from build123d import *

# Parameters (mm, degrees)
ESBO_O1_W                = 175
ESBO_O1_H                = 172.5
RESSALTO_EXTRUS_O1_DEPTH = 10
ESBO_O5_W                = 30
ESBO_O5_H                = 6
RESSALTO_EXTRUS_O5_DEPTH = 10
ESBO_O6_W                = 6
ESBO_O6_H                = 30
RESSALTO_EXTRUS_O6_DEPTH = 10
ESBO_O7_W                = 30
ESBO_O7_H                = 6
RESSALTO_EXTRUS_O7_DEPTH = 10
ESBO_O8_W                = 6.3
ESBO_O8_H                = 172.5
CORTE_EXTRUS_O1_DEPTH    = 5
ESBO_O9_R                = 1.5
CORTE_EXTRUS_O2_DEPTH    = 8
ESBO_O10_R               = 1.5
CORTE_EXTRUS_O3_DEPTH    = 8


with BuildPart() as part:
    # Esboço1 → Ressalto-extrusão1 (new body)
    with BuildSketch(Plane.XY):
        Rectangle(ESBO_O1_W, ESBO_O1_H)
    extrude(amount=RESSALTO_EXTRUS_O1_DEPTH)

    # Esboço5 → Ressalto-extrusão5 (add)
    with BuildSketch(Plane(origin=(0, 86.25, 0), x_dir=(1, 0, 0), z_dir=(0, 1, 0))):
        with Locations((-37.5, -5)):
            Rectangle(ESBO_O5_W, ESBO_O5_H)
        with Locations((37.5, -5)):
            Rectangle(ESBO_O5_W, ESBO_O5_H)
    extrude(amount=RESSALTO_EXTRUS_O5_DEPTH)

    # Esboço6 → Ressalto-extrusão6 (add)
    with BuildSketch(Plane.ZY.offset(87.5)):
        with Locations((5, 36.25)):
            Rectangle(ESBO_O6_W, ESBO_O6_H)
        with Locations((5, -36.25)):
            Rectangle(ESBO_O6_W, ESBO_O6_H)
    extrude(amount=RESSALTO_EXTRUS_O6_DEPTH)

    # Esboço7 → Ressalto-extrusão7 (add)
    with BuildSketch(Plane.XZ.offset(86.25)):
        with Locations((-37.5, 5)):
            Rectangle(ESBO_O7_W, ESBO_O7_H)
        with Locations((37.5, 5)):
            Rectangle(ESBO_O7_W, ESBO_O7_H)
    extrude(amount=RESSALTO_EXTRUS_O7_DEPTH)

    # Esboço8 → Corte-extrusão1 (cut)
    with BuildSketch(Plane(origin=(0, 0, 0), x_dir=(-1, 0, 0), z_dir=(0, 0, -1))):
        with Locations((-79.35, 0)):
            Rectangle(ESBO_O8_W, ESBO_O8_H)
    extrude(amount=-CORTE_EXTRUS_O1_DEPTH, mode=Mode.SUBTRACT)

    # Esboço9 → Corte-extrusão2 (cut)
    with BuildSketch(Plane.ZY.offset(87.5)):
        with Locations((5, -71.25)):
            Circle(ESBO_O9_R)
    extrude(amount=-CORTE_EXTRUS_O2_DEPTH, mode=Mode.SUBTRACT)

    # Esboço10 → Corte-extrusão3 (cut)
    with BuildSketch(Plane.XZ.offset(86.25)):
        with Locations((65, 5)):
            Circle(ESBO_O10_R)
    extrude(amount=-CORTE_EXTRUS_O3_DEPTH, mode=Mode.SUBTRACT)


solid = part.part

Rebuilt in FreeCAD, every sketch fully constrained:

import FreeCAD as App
import Part
import Sketcher

V = App.Vector
Q = App.Units.Quantity


def add_polygon(sketch, points):
    """Adds a closed chain of lines whose ends are joined by coincident constraints."""
    first, n = sketch.GeometryCount, len(points)
    for a, b in zip(points, points[1:] + points[:1]):
        sketch.addGeometry(Part.LineSegment(App.Vector(*a, 0), App.Vector(*b, 0)), False)
    for i in range(n):
        sketch.addConstraint(Sketcher.Constraint("Coincident", first + i, 2, first + (i + 1) % n, 1))

doc = App.newDocument("Part")
body = doc.addObject("PartDesign::Body", "Body")

# Sketch on XY plane
sketch1 = doc.addObject("Sketcher::SketchObject", "Sketch")
body.addObject(sketch1)
sketch1.AttachmentSupport = (doc.XY_Plane, [""])
sketch1.MapMode = "FlatFace"
add_polygon(sketch1, [(-88, 86), (-88, -86), (88, -86), (88, 86)])  # lines 0-3
sketch1.addConstraint([
    Sketcher.Constraint("Vertical", 0),
    Sketcher.Constraint("Horizontal", 1),
    Sketcher.Constraint("Vertical", 2),
    Sketcher.Constraint("Horizontal", 3),
    Sketcher.Constraint("Symmetric", 0, 2, 2, 2, -1, 1),
    Sketcher.Constraint("DistanceX", 1, 1, 1, 2, Q("175 mm")),
    Sketcher.Constraint("DistanceY", 0, 2, 0, 1, Q("172.5 mm")),
])
pad1 = doc.addObject("PartDesign::Pad", "Pad")
body.addObject(pad1)
pad1.Profile = sketch1
pad1.Length = 10

# Sketch on XZ plane
sketch2 = doc.addObject("Sketcher::SketchObject", "Sketch001")
body.addObject(sketch2)
sketch2.AttachmentSupport = (doc.XZ_Plane, [""])
sketch2.MapMode = "FlatFace"
sketch2.AttachmentOffset = App.Placement(V(0, 0, -86.25), App.Rotation())
add_polygon(sketch2, [(-52, 2), (-52, 8), (-22, 8), (-22, 2)])  # lines 0-3
add_polygon(sketch2, [(22, 2), (22, 8), (52, 8), (52, 2)])  # lines 4-7
sketch2.addConstraint([
    Sketcher.Constraint("Vertical", 0),
    Sketcher.Constraint("Horizontal", 1),
    Sketcher.Constraint("Vertical", 2),
    Sketcher.Constraint("Horizontal", 3),
    Sketcher.Constraint("Vertical", 4),
    Sketcher.Constraint("Horizontal", 5),
    Sketcher.Constraint("Vertical", 6),
    Sketcher.Constraint("Horizontal", 7),
    Sketcher.Constraint("Symmetric", 1, 2, 4, 2, -2),
    Sketcher.Constraint("Symmetric", 3, 2, 6, 2, -2),
    Sketcher.Constraint("DistanceX", 1, 1, 1, 2, Q("30 mm")),
    Sketcher.Constraint("DistanceY", 0, 1, 0, 2, Q("6 mm")),
    Sketcher.Constraint("DistanceY", -1, 1, 0, 2, Q("8 mm")),
    Sketcher.Constraint("DistanceX", 1, 2, 4, 2, Q("45 mm")),
])
pad2 = doc.addObject("PartDesign::Pad", "Pad001")
body.addObject(pad2)
pad2.Profile = sketch2
pad2.Length = 10
pad2.Reversed = True

# Sketch on YZ plane
sketch3 = doc.addObject("Sketcher::SketchObject", "Sketch002")
body.addObject(sketch3)
sketch3.AttachmentSupport = (doc.YZ_Plane, [""])
sketch3.MapMode = "FlatFace"
sketch3.AttachmentOffset = App.Placement(V(0, 0, -87.5), App.Rotation())
add_polygon(sketch3, [(51, 2), (21, 2), (21, 8), (51, 8)])  # lines 0-3
add_polygon(sketch3, [(-21, 2), (-51, 2), (-51, 8), (-21, 8)])  # lines 4-7
sketch3.addConstraint([
    Sketcher.Constraint("Horizontal", 0),
    Sketcher.Constraint("Vertical", 1),
    Sketcher.Constraint("Horizontal", 2),
    Sketcher.Constraint("Vertical", 3),
    Sketcher.Constraint("Horizontal", 4),
    Sketcher.Constraint("Vertical", 5),
    Sketcher.Constraint("Horizontal", 6),
    Sketcher.Constraint("Vertical", 7),
    Sketcher.Constraint("Symmetric", 3, 2, 4, 2, -2),
    Sketcher.Constraint("Symmetric", 1, 2, 6, 2, -2),
    Sketcher.Constraint("DistanceX", 0, 2, 0, 1, Q("30 mm")),
    Sketcher.Constraint("DistanceY", 1, 1, 1, 2, Q("6 mm")),
    Sketcher.Constraint("DistanceY", -1, 1, 0, 2, Q("2 mm")),
    Sketcher.Constraint("DistanceX", 4, 2, 0, 2, Q("72.5 mm")),
])
pad3 = doc.addObject("PartDesign::Pad", "Pad002")
body.addObject(pad3)
pad3.Profile = sketch3
pad3.Length = 10
pad3.Reversed = True

# Sketch on XZ plane
sketch4 = doc.addObject("Sketcher::SketchObject", "Sketch003")
body.addObject(sketch4)
sketch4.AttachmentSupport = (doc.XZ_Plane, [""])
sketch4.MapMode = "FlatFace"
sketch4.AttachmentOffset = App.Placement(V(0, 0, 86.25), App.Rotation())
add_polygon(sketch4, [(-52, 8), (-52, 2), (-22, 2), (-22, 8)])  # lines 0-3
add_polygon(sketch4, [(22, 8), (22, 2), (52, 2), (52, 8)])  # lines 4-7
sketch4.addConstraint([
    Sketcher.Constraint("Vertical", 0),
    Sketcher.Constraint("Horizontal", 1),
    Sketcher.Constraint("Vertical", 2),
    Sketcher.Constraint("Horizontal", 3),
    Sketcher.Constraint("Vertical", 4),
    Sketcher.Constraint("Horizontal", 5),
    Sketcher.Constraint("Vertical", 6),
    Sketcher.Constraint("Horizontal", 7),
    Sketcher.Constraint("Symmetric", 1, 2, 4, 2, -2),
    Sketcher.Constraint("Symmetric", 3, 2, 6, 2, -2),
    Sketcher.Constraint("DistanceX", 1, 1, 1, 2, Q("30 mm")),
    Sketcher.Constraint("DistanceY", 0, 2, 0, 1, Q("6 mm")),
    Sketcher.Constraint("DistanceY", -1, 1, 0, 2, Q("2 mm")),
    Sketcher.Constraint("DistanceX", 1, 2, 4, 2, Q("45 mm")),
])
pad4 = doc.addObject("PartDesign::Pad", "Pad003")
body.addObject(pad4)
pad4.Profile = sketch4
pad4.Length = 10

# Sketch on XY plane
sketch5 = doc.addObject("Sketcher::SketchObject", "Sketch004")
body.addObject(sketch5)
sketch5.AttachmentSupport = (doc.XY_Plane, [""])
sketch5.MapMode = "FlatFace"
add_polygon(sketch5, [(82, 86), (82, -86), (76, -86), (76, 86)])  # lines 0-3
sketch5.addConstraint([
    Sketcher.Constraint("Vertical", 0),
    Sketcher.Constraint("Horizontal", 1),
    Sketcher.Constraint("Vertical", 2),
    Sketcher.Constraint("Horizontal", 3),
    Sketcher.Constraint("DistanceX", 1, 2, 1, 1, Q("6.3 mm")),
    Sketcher.Constraint("DistanceY", 0, 2, 0, 1, Q("172.5 mm")),
    Sketcher.Constraint("DistanceX", -1, 1, 0, 2, Q("82.5 mm")),
    Sketcher.Constraint("DistanceY", 0, 2, -1, 1, Q("86.25 mm")),
])
pocket1 = doc.addObject("PartDesign::Pocket", "Pocket")
body.addObject(pocket1)
pocket1.Profile = sketch5
pocket1.Length = 5
pocket1.Reversed = True

# Sketch on YZ plane
sketch6 = doc.addObject("Sketcher::SketchObject", "Sketch005")
body.addObject(sketch6)
sketch6.AttachmentSupport = (doc.YZ_Plane, [""])
sketch6.MapMode = "FlatFace"
sketch6.AttachmentOffset = App.Placement(V(0, 0, -87.5), App.Rotation())
sketch6.addGeometry(Part.Circle(V(-71.2, 5, 0), V(0, 0, 1), 1.5), False)
sketch6.addConstraint([
    Sketcher.Constraint("Diameter", 0, Q("3 mm")),
    Sketcher.Constraint("DistanceY", -1, 1, 0, 3, Q("5 mm")),
    Sketcher.Constraint("DistanceX", 0, 3, -1, 1, Q("71.25 mm")),
])
pocket2 = doc.addObject("PartDesign::Pocket", "Pocket001")
body.addObject(pocket2)
pocket2.Profile = sketch6
pocket2.Length = 8
pocket2.Reversed = True

# Sketch on XZ plane
sketch7 = doc.addObject("Sketcher::SketchObject", "Sketch006")
body.addObject(sketch7)
sketch7.AttachmentSupport = (doc.XZ_Plane, [""])
sketch7.MapMode = "FlatFace"
sketch7.AttachmentOffset = App.Placement(V(0, 0, 86.25), App.Rotation())
sketch7.addGeometry(Part.Circle(V(65, 5, 0), V(0, 0, 1), 1.5), False)
sketch7.addConstraint([
    Sketcher.Constraint("Diameter", 0, Q("3 mm")),
    Sketcher.Constraint("DistanceX", -1, 1, 0, 3, Q("65 mm")),
    Sketcher.Constraint("DistanceY", -1, 1, 0, 3, Q("5 mm")),
])
pocket3 = doc.addObject("PartDesign::Pocket", "Pocket002")
body.addObject(pocket3)
pocket3.Profile = sketch7
pocket3.Length = 8

doc.recompute()
